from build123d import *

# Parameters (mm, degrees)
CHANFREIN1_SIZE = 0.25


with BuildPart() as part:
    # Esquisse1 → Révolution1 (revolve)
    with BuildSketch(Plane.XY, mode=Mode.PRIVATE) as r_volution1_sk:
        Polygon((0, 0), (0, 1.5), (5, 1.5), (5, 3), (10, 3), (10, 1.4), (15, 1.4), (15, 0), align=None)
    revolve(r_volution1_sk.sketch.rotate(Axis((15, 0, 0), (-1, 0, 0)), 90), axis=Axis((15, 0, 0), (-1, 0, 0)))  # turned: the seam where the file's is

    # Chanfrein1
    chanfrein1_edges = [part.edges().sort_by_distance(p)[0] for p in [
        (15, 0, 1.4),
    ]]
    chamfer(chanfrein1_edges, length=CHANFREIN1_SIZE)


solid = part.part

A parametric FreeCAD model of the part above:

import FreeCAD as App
import Part
import Sketcher

V = App.Vector
Q = App.Units.Quantity


def edges_at(feature, points):
    """Names of the edges that pass closest to the given points."""
    edges = feature.Shape.Edges
    near = lambda p: min(range(len(edges)), key=lambda i: edges[i].distToShape(Part.Vertex(*p))[0])
    return sorted({f"Edge{near(p) + 1}" for p in points})


def add_polygon(sketch, points):
    """Adds a closed chain of lines whose ends are joined by coincident constraints."""
    first, n = sketch.GeometryCount, len(points)
    for a, b in zip(points, points[1:] + points[:1]):
        sketch.addGeometry(Part.LineSegment(App.Vector(*a, 0), App.Vector(*b, 0)), False)
    for i in range(n):
        sketch.addConstraint(Sketcher.Constraint("Coincident", first + i, 2, first + (i + 1) % n, 1))

doc = App.newDocument("Part")
params = doc.addObject("Spreadsheet::Sheet", "Params")
for row, (alias, value) in enumerate([
    ("sketch1_width", "15 mm"),
    ("sketch1_height", "1.5 mm"),
    ("sketch1_height2", "1.4 mm"),
    ("revolution_angle", "360 deg"),
    ("chamfer_size", "0.25 mm"),
], start=1):
    params.set(f"A{row}", alias)
    params.set(f"B{row}", "=" + value)
    params.setAlias(f"B{row}", alias)

body = doc.addObject("PartDesign::Body", "Body")

sketch1 = doc.addObject("Sketcher::SketchObject", "Sketch")
body.addObject(sketch1)
sketch1.AttachmentSupport = (doc.XY_Plane, [""])
sketch1.MapMode = "FlatFace"
add_polygon(sketch1, [(0, 1.5), (0, 0), (15, 0), (15, 1.4), (10, 1.4), (10, 3), (5, 3), (5, 1.5)])
sketch1.addConstraint(Sketcher.Constraint("Vertical", 0))
sketch1.addConstraint(Sketcher.Constraint("Horizontal", 1))
sketch1.addConstraint(Sketcher.Constraint("Vertical", 2))
sketch1.addConstraint(Sketcher.Constraint("Horizontal", 3))
sketch1.addConstraint(Sketcher.Constraint("Vertical", 4))
sketch1.addConstraint(Sketcher.Constraint("Horizontal", 5))
sketch1.addConstraint(Sketcher.Constraint("Vertical", 6))
sketch1.addConstraint(Sketcher.Constraint("Horizontal", 7))
sketch1.addConstraint(Sketcher.Constraint("Coincident", 0, 2, -1, 1))
sketch1.addConstraint(Sketcher.Constraint("Equal", 3, 5))
sketch1.addConstraint(Sketcher.Constraint("Equal", 5, 7))
sketch1.addConstraint(Sketcher.Constraint("Equal", 0, 6))
sketch1.addConstraint(Sketcher.Constraint("DistanceX", 1, 1, 1, 2, Q("15 mm")))
sketch1.addConstraint(Sketcher.Constraint("DistanceY", 0, 2, 0, 1, Q("1.5 mm")))
sketch1.addConstraint(Sketcher.Constraint("DistanceY", 2, 1, 2, 2, Q("1.4 mm")))
sketch1.setExpression("Constraints[20]", "Params.sketch1_width")
sketch1.setExpression("Constraints[21]", "Params.sketch1_height")
sketch1.setExpression("Constraints[22]", "Params.sketch1_height2")
revolution = doc.addObject("PartDesign::Revolution", "Revolution")
body.addObject(revolution)
revolution.Profile = sketch1
revolution.ReferenceAxis = (sketch1, ["H_Axis"])
revolution.setExpression("Angle", "Params.revolution_angle")
doc.recompute()

chamfer = doc.addObject("PartDesign::Chamfer", "Chamfer")
body.addObject(chamfer)
chamfer.Base = (revolution, edges_at(revolution, [(15, 0, 1.4)]))
chamfer.setExpression("Size", "Params.chamfer_size")

doc.recompute()
